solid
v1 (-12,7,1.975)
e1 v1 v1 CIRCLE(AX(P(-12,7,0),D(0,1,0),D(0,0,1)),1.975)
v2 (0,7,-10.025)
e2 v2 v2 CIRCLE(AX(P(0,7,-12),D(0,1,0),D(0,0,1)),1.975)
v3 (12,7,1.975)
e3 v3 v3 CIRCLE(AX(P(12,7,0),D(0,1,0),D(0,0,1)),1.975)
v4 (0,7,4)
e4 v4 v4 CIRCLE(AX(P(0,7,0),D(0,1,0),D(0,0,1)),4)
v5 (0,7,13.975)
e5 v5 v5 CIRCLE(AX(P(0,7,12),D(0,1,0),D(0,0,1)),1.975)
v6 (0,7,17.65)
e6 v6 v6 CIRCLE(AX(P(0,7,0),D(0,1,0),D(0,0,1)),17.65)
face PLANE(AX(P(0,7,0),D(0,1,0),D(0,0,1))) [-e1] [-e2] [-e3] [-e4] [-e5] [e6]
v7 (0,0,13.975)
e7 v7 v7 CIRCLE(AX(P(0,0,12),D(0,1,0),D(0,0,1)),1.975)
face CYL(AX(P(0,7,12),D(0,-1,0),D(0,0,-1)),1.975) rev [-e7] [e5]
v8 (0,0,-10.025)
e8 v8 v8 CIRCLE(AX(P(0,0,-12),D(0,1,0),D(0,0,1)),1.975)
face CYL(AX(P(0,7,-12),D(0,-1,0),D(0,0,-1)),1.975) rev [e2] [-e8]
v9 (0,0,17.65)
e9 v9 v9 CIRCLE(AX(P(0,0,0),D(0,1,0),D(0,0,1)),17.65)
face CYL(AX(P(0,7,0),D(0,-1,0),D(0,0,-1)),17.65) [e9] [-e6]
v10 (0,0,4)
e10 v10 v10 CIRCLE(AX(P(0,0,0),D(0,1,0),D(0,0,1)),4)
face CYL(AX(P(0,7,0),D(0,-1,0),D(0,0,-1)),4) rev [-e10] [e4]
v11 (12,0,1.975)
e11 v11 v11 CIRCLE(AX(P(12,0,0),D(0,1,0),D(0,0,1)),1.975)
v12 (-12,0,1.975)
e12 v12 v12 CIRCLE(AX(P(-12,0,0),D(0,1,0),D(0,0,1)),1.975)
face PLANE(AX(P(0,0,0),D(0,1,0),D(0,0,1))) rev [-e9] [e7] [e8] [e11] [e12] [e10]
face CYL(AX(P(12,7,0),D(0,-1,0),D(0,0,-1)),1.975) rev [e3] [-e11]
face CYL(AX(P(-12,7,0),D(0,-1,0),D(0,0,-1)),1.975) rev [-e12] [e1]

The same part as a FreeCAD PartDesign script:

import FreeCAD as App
import Part
import Sketcher
from FreeCAD import Vector
Q = App.Units.Quantity

doc = App.newDocument("Part")
params = doc.addObject("Spreadsheet::Sheet", "Params")
for row, (alias, value) in enumerate([
    ("sketch1_diameter", "8 mm"),
    ("sketch1_diameter2", "35.3 mm"),
    ("sketch1_diameter3", "3.95 mm"),
    ("pad1_length", "7 mm"),
], start=1):
    params.set(f"A{row}", alias)
    params.set(f"B{row}", "=" + value)
    params.setAlias(f"B{row}", alias)

body = doc.addObject("PartDesign::Body", "Body")

# Sketch on XZ plane
sketch1 = body.newObject("Sketcher::SketchObject", "Sketch")
sketch1.AttachmentSupport = (doc.getObject("XZ_Plane"), [""])
sketch1.MapMode = "FlatFace"
sketch1.addGeometry([
    Part.Circle(Vector(0, 0, 0), Vector(0, 0, 1), 17.6),  # 0
    Part.Circle(Vector(0, -12, 0), Vector(0, 0, 1), 2),  # 1
    Part.Circle(Vector(0, 0, 0), Vector(0, 0, 1), 4),  # 2
    Part.Circle(Vector(-12, 0, 0), Vector(0, 0, 1), 2),  # 3
    Part.Circle(Vector(12, 0, 0), Vector(0, 0, 1), 2),  # 4
    Part.Circle(Vector(0, 12, 0), Vector(0, 0, 1), 2),  # 5
], False)
sketch1.addConstraint([
    Sketcher.Constraint("Coincident", 0, 3, -1, 1),
    Sketcher.Constraint("Coincident", 2, 3, -1, 1),
    Sketcher.Constraint("Equal", 1, 3),
    Sketcher.Constraint("Equal", 3, 4),
    Sketcher.Constraint("Equal", 4, 5),
    Sketcher.Constraint("Symmetric", 3, 3, 4, 3, -1, 1),
    Sketcher.Constraint("Symmetric", 1, 3, 5, 3, -1, 1),
    Sketcher.Constraint("PointOnObject", 1, 3, -2),
    Sketcher.Constraint("PointOnObject", 3, 3, -1),
    Sketcher.Constraint("Diameter", 2, Q("8 mm")),
    Sketcher.Constraint("Diameter", 0, Q("35.3 mm")),
    Sketcher.Constraint("Diameter", 1, Q("3.95 mm")),
    Sketcher.Constraint("DistanceY", 1, 3, -1, 1, Q("12 mm")),
    Sketcher.Constraint("DistanceX", 3, 3, -1, 1, Q("12 mm")),
])
sketch1.setExpression("Constraints[9]", "Params.sketch1_diameter")
sketch1.setExpression("Constraints[10]", "Params.sketch1_diameter2")
sketch1.setExpression("Constraints[11]", "Params.sketch1_diameter3")
pad1 = body.newObject("PartDesign::Pad", "Pad")
pad1.Profile = sketch1
pad1.setExpression("Length", "Params.pad1_length")
pad1.Reversed = True

doc.recompute()
